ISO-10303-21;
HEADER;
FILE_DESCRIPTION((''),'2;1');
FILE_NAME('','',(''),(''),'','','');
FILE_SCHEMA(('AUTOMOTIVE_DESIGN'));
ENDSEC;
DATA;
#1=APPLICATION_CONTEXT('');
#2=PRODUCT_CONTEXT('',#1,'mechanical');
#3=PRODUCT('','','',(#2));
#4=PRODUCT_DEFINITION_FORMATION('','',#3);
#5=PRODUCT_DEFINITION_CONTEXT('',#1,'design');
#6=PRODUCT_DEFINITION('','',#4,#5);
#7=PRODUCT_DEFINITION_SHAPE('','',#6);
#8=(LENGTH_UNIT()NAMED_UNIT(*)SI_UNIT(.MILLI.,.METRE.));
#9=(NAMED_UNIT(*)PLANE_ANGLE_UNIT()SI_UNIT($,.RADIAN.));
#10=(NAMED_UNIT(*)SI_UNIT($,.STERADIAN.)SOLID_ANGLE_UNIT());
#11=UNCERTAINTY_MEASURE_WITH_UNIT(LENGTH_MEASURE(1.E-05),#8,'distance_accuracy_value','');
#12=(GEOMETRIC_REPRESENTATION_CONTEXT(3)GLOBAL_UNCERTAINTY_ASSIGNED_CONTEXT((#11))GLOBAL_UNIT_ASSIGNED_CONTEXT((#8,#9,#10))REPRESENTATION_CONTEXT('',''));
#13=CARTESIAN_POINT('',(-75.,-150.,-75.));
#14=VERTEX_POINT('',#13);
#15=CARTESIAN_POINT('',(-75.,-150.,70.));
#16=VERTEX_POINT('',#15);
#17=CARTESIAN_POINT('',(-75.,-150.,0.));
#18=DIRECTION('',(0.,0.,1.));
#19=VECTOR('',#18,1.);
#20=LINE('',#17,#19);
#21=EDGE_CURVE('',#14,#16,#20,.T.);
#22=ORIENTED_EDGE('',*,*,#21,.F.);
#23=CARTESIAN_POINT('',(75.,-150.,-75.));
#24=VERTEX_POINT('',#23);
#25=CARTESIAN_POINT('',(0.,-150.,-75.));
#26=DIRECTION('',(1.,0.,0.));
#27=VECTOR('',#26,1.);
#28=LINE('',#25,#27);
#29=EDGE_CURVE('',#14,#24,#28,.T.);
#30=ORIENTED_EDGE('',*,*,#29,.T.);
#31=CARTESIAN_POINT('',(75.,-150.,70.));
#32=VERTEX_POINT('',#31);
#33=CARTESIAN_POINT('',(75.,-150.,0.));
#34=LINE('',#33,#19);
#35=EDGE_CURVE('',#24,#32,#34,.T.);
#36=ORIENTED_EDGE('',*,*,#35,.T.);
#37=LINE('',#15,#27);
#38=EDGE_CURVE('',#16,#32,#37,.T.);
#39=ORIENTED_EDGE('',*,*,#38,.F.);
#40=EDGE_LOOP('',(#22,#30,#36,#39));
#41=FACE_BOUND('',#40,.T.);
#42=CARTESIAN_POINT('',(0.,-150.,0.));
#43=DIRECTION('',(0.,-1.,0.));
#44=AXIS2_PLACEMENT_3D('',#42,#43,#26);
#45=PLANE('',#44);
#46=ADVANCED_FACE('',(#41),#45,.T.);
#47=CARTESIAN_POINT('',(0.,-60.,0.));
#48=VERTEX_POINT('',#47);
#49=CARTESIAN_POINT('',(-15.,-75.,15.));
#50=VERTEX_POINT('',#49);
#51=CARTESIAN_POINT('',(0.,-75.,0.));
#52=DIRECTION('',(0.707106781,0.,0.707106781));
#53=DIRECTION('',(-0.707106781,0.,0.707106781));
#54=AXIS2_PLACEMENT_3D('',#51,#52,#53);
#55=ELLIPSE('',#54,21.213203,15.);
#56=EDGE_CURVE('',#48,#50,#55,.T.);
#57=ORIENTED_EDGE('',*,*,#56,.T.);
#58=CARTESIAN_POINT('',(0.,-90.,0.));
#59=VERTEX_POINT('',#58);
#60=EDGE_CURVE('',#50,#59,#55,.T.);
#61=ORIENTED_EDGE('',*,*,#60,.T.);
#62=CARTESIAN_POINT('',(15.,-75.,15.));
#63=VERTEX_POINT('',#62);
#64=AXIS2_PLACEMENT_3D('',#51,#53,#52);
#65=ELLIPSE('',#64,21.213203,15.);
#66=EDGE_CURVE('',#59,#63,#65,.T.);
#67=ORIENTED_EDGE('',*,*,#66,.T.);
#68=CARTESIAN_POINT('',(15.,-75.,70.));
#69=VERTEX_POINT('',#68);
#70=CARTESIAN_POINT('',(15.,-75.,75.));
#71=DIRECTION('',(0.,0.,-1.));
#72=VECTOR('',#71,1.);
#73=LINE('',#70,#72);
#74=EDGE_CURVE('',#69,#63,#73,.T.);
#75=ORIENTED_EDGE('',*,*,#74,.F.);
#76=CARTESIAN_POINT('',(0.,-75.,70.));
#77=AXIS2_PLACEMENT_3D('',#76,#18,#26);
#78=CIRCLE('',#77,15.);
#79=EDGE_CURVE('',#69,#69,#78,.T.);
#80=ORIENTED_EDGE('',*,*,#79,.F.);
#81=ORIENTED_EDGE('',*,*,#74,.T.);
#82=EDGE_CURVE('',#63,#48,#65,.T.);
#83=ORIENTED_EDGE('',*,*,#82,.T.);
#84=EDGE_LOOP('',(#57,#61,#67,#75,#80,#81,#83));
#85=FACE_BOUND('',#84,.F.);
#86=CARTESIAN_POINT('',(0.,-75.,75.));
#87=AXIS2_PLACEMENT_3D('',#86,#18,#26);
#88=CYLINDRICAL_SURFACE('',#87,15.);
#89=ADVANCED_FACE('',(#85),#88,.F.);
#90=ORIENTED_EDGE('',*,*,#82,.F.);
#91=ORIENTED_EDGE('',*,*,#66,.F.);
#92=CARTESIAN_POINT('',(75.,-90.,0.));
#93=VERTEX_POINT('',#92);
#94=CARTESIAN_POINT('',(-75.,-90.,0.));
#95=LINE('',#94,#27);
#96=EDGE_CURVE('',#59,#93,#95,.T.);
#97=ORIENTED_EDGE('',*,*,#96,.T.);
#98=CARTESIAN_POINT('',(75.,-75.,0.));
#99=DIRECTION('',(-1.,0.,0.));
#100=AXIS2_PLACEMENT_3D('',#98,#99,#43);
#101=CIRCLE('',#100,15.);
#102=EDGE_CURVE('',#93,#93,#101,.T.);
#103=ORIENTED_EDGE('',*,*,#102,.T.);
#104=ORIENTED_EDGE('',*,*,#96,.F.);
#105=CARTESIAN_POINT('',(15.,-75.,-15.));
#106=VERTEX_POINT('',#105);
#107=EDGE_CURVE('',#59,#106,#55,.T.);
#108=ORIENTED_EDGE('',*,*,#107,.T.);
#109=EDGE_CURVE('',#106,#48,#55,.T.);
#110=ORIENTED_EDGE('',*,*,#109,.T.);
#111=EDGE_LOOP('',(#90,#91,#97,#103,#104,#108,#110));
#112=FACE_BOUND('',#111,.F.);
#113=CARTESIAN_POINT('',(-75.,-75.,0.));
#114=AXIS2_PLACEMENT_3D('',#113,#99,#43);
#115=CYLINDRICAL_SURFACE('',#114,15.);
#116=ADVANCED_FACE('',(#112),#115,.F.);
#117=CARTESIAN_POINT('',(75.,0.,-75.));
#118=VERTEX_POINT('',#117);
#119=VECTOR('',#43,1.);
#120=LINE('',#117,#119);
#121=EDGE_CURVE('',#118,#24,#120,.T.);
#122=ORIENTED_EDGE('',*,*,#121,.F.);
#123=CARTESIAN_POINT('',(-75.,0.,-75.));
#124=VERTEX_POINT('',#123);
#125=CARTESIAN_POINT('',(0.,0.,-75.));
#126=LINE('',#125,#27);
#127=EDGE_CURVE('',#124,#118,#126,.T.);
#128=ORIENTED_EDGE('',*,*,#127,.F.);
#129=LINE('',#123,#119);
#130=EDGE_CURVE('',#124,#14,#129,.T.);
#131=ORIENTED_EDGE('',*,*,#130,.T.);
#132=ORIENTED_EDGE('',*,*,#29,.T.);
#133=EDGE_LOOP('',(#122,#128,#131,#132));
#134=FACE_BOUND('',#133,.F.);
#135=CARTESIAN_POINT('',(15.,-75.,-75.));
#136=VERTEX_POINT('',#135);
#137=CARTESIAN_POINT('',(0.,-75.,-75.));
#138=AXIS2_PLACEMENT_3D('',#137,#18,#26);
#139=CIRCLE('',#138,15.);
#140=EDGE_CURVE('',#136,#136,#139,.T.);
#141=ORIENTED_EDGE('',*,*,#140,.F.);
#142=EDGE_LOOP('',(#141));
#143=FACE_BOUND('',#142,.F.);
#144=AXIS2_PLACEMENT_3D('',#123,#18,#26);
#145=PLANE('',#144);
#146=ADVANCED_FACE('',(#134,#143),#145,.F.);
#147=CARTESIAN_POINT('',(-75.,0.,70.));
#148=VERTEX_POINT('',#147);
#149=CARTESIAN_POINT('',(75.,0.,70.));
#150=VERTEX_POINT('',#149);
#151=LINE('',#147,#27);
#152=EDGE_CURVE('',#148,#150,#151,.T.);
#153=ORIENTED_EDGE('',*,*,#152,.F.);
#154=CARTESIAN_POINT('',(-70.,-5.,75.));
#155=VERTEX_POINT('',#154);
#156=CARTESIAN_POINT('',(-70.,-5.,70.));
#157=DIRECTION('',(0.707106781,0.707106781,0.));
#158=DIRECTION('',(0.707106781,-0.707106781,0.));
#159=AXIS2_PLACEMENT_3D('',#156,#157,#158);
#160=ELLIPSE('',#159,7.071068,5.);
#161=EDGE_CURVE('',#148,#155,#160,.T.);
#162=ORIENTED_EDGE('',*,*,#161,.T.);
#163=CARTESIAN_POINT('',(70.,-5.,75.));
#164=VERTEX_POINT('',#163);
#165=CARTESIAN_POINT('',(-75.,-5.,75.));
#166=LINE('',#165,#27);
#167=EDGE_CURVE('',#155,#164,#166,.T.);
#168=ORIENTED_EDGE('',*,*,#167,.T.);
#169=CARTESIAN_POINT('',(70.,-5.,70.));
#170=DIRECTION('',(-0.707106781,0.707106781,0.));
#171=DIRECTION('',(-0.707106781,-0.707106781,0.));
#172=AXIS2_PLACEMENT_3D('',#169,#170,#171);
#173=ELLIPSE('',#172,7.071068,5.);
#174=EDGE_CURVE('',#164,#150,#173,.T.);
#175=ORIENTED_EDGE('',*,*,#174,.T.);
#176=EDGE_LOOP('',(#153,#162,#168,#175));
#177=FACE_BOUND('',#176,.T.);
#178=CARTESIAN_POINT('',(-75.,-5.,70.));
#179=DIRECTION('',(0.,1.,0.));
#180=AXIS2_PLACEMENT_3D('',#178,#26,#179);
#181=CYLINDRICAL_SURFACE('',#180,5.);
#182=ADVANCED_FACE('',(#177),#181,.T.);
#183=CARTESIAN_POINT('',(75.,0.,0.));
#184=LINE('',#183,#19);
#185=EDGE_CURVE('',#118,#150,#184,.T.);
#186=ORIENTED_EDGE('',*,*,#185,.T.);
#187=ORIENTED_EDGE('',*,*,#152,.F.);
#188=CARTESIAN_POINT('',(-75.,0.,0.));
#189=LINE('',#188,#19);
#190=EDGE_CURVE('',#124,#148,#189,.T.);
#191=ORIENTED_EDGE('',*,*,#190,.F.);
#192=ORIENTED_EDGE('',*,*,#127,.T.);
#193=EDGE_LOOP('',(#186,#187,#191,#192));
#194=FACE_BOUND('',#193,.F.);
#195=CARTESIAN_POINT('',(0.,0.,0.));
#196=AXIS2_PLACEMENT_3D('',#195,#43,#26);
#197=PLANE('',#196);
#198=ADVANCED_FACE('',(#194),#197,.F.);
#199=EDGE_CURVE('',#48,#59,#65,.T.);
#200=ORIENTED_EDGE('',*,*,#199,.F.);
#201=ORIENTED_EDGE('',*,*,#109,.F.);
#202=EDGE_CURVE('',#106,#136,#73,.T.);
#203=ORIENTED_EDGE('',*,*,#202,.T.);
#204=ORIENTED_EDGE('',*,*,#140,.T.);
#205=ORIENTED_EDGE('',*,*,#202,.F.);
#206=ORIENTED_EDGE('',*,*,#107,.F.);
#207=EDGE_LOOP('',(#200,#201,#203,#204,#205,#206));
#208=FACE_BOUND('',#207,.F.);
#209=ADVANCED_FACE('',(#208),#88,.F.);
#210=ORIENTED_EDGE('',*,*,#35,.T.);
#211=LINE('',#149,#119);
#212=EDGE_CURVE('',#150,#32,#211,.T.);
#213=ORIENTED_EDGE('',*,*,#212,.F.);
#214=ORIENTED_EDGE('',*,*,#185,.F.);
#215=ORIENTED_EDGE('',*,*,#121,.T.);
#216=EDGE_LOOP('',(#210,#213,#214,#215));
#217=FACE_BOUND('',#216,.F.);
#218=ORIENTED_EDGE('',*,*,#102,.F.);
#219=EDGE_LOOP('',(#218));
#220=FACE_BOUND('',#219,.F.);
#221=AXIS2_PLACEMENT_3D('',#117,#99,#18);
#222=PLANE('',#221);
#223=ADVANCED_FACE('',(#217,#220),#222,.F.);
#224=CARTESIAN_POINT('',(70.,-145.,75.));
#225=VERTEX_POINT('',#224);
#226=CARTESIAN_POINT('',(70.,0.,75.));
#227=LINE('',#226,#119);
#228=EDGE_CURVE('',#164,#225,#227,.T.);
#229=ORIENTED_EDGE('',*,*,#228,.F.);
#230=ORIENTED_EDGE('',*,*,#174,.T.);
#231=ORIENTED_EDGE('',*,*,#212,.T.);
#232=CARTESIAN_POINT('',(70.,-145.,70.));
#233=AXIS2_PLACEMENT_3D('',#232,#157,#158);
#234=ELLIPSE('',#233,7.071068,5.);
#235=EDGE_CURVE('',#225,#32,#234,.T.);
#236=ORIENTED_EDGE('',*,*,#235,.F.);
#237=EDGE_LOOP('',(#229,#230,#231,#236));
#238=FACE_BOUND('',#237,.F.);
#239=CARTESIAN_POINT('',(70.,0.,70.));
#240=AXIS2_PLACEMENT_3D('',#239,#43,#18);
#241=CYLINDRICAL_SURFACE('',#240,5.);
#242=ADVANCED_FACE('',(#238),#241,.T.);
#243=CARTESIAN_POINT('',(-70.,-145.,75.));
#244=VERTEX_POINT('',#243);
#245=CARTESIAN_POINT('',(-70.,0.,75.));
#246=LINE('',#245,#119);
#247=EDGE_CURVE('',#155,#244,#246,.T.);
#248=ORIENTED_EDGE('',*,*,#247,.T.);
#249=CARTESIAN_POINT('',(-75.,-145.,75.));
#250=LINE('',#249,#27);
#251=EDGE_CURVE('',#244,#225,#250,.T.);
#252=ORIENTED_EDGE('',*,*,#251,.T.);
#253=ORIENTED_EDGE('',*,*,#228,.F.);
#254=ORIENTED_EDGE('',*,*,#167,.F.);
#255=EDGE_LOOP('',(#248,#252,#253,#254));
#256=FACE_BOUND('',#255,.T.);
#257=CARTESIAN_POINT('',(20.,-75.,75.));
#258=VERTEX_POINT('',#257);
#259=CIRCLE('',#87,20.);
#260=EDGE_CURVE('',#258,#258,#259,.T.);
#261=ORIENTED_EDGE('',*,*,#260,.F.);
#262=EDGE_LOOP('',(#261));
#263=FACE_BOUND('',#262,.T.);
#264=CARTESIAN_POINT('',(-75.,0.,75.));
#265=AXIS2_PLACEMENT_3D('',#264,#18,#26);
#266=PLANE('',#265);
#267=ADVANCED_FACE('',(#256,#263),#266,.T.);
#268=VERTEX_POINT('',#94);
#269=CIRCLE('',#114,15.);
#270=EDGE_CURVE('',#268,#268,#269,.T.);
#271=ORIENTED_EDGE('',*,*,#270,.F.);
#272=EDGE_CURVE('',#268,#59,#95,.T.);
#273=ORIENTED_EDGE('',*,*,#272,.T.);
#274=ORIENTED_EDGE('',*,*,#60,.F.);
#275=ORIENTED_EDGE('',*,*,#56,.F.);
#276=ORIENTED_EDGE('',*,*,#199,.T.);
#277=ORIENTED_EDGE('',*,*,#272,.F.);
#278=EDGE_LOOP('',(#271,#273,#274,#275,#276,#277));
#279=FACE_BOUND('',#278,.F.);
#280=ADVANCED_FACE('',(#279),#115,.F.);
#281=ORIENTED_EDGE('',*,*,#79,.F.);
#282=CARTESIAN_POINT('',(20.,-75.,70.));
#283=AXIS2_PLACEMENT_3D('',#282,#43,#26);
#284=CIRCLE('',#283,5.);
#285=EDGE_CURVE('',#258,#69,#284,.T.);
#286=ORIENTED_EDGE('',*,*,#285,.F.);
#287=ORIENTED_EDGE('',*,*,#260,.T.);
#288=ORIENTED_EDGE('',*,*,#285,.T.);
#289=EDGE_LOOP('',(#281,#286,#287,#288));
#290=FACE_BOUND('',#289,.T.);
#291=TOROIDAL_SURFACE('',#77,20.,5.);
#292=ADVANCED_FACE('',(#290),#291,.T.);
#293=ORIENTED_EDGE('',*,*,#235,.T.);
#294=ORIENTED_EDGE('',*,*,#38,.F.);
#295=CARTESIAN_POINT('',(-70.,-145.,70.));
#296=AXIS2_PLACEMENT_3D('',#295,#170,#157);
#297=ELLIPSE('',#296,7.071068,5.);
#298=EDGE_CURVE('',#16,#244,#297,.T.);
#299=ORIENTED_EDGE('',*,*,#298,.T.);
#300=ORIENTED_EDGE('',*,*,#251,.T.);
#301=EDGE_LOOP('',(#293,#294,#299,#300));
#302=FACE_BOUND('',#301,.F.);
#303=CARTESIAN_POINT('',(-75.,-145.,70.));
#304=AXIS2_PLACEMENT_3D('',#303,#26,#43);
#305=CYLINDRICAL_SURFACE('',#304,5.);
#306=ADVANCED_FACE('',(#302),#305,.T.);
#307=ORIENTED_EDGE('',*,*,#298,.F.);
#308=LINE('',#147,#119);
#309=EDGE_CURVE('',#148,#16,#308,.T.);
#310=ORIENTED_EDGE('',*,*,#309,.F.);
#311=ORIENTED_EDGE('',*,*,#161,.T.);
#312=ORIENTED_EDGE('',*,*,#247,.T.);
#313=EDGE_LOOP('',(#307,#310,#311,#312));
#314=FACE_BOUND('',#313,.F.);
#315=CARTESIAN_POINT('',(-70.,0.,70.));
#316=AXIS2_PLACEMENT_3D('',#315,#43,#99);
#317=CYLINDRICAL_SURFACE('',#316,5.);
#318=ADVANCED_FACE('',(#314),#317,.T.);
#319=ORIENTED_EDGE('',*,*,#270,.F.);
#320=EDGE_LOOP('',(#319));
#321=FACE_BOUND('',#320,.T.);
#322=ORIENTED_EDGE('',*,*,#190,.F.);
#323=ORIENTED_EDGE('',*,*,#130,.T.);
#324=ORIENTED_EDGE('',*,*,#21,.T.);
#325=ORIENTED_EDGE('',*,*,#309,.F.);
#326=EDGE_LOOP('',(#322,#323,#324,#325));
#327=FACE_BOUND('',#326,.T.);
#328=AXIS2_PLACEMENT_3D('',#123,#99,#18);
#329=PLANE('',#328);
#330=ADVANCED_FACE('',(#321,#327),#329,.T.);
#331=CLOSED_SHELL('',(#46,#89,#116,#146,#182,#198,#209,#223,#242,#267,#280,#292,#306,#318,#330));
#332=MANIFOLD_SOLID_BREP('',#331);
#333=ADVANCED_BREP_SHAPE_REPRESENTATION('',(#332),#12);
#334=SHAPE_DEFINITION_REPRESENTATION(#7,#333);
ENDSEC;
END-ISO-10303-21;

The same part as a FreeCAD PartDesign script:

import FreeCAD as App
import Part
import Sketcher
Q = App.Units.Quantity


def edges_at(feature, points):
    """Names of the edges that pass closest to the given points."""
    edges = feature.Shape.Edges
    near = lambda p: min(range(len(edges)), key=lambda i: edges[i].distToShape(Part.Vertex(*p))[0])
    return sorted({f"Edge{near(p) + 1}" for p in points})

doc = App.newDocument("Part")
params = doc.addObject("Spreadsheet::Sheet", "Params")
for row, (alias, value) in enumerate([
    ("sketch1_width", "150 mm"),
    ("pad1_length", "150 mm"),
    ("sketch2_diameter", "30 mm"),
    ("pocket1_length", "150 mm"),
    ("sketch3_diameter", "30 mm"),
    ("pocket2_length", "150 mm"),
    ("fillet_radius", "5 mm"),
], start=1):
    params.set(f"A{row}", alias)
    params.set(f"B{row}", "=" + value)
    params.setAlias(f"B{row}", alias)

body = doc.addObject("PartDesign::Body", "Body")

# Sketch on XZ plane
sketch1 = body.newObject("Sketcher::SketchObject", "Sketch")
sketch1.AttachmentSupport = (doc.getObject("XZ_Plane"), [""])
sketch1.MapMode = "FlatFace"
sketch1.addGeometry([
    Part.LineSegment(App.Vector(-75, 75, 0), App.Vector(-75, -75, 0)),
    Part.LineSegment(App.Vector(-75, -75, 0), App.Vector(75, -75, 0)),
    Part.LineSegment(App.Vector(75, -75, 0), App.Vector(75, 75, 0)),
    Part.LineSegment(App.Vector(75, 75, 0), App.Vector(-75, 75, 0)),
], False)
sketch1.addConstraint([
    Sketcher.Constraint("Coincident", 0, 2, 1, 1),
    Sketcher.Constraint("Coincident", 1, 2, 2, 1),
    Sketcher.Constraint("Coincident", 2, 2, 3, 1),
    Sketcher.Constraint("Coincident", 3, 2, 0, 1),
    Sketcher.Constraint("Vertical", 0),
    Sketcher.Constraint("Horizontal", 1),
    Sketcher.Constraint("Vertical", 2),
    Sketcher.Constraint("Horizontal", 3),
    Sketcher.Constraint("Symmetric", 0, 2, 2, 2, -1, 1),
    Sketcher.Constraint("Equal", 3, 0),
    Sketcher.Constraint("DistanceX", 1, 1, 1, 2, Q("150 mm")),
])
sketch1.setExpression("Constraints[10]", "Params.sketch1_width")
pad1 = body.newObject("PartDesign::Pad", "Pad")
pad1.Profile = sketch1
pad1.setExpression("Length", "Params.pad1_length")

# Sketch on XY plane
sketch2 = body.newObject("Sketcher::SketchObject", "Sketch001")
sketch2.AttachmentSupport = (doc.getObject("XY_Plane"), [""])
sketch2.MapMode = "FlatFace"
sketch2.AttachmentOffset = App.Placement(App.Vector(0, 0, 75), App.Rotation())
sketch2.addGeometry(Part.Circle(App.Vector(0, -75, 0), App.Vector(0, 0, 1), 15), False)
sketch2.addConstraint([
    Sketcher.Constraint("PointOnObject", 0, 3, -2),
    Sketcher.Constraint("Diameter", 0, Q("30 mm")),
    Sketcher.Constraint("DistanceY", 0, 3, -1, 1, Q("75 mm")),
])
sketch2.setExpression("Constraints[1]", "Params.sketch2_diameter")
pocket1 = body.newObject("PartDesign::Pocket", "Pocket")
pocket1.Profile = sketch2
pocket1.setExpression("Length", "Params.pocket1_length")

# Sketch on YZ plane
sketch3 = body.newObject("Sketcher::SketchObject", "Sketch002")
sketch3.AttachmentSupport = (doc.getObject("YZ_Plane"), [""])
sketch3.MapMode = "FlatFace"
sketch3.AttachmentOffset = App.Placement(App.Vector(0, 0, -75), App.Rotation())
sketch3.addGeometry(Part.Circle(App.Vector(-75, 0, 0), App.Vector(0, 0, 1), 15), False)
sketch3.addConstraint([
    Sketcher.Constraint("PointOnObject", 0, 3, -1),
    Sketcher.Constraint("Diameter", 0, Q("30 mm")),
    Sketcher.Constraint("DistanceX", 0, 3, -1, 1, Q("75 mm")),
])
sketch3.setExpression("Constraints[1]", "Params.sketch3_diameter")
pocket2 = body.newObject("PartDesign::Pocket", "Pocket001")
pocket2.Profile = sketch3
pocket2.setExpression("Length", "Params.pocket2_length")
pocket2.Reversed = True
doc.recompute()

fillet = body.newObject("PartDesign::Fillet", "Fillet")
fillet.Base = (pocket2, edges_at(pocket2, [
    (75, -75, 75),
    (0, 0, 75),
    (0, -150, 75),
    (-75, -75, 75),
    (-15, -75, 75),
]))
fillet.setExpression("Radius", "Params.fillet_radius")

doc.recompute()
